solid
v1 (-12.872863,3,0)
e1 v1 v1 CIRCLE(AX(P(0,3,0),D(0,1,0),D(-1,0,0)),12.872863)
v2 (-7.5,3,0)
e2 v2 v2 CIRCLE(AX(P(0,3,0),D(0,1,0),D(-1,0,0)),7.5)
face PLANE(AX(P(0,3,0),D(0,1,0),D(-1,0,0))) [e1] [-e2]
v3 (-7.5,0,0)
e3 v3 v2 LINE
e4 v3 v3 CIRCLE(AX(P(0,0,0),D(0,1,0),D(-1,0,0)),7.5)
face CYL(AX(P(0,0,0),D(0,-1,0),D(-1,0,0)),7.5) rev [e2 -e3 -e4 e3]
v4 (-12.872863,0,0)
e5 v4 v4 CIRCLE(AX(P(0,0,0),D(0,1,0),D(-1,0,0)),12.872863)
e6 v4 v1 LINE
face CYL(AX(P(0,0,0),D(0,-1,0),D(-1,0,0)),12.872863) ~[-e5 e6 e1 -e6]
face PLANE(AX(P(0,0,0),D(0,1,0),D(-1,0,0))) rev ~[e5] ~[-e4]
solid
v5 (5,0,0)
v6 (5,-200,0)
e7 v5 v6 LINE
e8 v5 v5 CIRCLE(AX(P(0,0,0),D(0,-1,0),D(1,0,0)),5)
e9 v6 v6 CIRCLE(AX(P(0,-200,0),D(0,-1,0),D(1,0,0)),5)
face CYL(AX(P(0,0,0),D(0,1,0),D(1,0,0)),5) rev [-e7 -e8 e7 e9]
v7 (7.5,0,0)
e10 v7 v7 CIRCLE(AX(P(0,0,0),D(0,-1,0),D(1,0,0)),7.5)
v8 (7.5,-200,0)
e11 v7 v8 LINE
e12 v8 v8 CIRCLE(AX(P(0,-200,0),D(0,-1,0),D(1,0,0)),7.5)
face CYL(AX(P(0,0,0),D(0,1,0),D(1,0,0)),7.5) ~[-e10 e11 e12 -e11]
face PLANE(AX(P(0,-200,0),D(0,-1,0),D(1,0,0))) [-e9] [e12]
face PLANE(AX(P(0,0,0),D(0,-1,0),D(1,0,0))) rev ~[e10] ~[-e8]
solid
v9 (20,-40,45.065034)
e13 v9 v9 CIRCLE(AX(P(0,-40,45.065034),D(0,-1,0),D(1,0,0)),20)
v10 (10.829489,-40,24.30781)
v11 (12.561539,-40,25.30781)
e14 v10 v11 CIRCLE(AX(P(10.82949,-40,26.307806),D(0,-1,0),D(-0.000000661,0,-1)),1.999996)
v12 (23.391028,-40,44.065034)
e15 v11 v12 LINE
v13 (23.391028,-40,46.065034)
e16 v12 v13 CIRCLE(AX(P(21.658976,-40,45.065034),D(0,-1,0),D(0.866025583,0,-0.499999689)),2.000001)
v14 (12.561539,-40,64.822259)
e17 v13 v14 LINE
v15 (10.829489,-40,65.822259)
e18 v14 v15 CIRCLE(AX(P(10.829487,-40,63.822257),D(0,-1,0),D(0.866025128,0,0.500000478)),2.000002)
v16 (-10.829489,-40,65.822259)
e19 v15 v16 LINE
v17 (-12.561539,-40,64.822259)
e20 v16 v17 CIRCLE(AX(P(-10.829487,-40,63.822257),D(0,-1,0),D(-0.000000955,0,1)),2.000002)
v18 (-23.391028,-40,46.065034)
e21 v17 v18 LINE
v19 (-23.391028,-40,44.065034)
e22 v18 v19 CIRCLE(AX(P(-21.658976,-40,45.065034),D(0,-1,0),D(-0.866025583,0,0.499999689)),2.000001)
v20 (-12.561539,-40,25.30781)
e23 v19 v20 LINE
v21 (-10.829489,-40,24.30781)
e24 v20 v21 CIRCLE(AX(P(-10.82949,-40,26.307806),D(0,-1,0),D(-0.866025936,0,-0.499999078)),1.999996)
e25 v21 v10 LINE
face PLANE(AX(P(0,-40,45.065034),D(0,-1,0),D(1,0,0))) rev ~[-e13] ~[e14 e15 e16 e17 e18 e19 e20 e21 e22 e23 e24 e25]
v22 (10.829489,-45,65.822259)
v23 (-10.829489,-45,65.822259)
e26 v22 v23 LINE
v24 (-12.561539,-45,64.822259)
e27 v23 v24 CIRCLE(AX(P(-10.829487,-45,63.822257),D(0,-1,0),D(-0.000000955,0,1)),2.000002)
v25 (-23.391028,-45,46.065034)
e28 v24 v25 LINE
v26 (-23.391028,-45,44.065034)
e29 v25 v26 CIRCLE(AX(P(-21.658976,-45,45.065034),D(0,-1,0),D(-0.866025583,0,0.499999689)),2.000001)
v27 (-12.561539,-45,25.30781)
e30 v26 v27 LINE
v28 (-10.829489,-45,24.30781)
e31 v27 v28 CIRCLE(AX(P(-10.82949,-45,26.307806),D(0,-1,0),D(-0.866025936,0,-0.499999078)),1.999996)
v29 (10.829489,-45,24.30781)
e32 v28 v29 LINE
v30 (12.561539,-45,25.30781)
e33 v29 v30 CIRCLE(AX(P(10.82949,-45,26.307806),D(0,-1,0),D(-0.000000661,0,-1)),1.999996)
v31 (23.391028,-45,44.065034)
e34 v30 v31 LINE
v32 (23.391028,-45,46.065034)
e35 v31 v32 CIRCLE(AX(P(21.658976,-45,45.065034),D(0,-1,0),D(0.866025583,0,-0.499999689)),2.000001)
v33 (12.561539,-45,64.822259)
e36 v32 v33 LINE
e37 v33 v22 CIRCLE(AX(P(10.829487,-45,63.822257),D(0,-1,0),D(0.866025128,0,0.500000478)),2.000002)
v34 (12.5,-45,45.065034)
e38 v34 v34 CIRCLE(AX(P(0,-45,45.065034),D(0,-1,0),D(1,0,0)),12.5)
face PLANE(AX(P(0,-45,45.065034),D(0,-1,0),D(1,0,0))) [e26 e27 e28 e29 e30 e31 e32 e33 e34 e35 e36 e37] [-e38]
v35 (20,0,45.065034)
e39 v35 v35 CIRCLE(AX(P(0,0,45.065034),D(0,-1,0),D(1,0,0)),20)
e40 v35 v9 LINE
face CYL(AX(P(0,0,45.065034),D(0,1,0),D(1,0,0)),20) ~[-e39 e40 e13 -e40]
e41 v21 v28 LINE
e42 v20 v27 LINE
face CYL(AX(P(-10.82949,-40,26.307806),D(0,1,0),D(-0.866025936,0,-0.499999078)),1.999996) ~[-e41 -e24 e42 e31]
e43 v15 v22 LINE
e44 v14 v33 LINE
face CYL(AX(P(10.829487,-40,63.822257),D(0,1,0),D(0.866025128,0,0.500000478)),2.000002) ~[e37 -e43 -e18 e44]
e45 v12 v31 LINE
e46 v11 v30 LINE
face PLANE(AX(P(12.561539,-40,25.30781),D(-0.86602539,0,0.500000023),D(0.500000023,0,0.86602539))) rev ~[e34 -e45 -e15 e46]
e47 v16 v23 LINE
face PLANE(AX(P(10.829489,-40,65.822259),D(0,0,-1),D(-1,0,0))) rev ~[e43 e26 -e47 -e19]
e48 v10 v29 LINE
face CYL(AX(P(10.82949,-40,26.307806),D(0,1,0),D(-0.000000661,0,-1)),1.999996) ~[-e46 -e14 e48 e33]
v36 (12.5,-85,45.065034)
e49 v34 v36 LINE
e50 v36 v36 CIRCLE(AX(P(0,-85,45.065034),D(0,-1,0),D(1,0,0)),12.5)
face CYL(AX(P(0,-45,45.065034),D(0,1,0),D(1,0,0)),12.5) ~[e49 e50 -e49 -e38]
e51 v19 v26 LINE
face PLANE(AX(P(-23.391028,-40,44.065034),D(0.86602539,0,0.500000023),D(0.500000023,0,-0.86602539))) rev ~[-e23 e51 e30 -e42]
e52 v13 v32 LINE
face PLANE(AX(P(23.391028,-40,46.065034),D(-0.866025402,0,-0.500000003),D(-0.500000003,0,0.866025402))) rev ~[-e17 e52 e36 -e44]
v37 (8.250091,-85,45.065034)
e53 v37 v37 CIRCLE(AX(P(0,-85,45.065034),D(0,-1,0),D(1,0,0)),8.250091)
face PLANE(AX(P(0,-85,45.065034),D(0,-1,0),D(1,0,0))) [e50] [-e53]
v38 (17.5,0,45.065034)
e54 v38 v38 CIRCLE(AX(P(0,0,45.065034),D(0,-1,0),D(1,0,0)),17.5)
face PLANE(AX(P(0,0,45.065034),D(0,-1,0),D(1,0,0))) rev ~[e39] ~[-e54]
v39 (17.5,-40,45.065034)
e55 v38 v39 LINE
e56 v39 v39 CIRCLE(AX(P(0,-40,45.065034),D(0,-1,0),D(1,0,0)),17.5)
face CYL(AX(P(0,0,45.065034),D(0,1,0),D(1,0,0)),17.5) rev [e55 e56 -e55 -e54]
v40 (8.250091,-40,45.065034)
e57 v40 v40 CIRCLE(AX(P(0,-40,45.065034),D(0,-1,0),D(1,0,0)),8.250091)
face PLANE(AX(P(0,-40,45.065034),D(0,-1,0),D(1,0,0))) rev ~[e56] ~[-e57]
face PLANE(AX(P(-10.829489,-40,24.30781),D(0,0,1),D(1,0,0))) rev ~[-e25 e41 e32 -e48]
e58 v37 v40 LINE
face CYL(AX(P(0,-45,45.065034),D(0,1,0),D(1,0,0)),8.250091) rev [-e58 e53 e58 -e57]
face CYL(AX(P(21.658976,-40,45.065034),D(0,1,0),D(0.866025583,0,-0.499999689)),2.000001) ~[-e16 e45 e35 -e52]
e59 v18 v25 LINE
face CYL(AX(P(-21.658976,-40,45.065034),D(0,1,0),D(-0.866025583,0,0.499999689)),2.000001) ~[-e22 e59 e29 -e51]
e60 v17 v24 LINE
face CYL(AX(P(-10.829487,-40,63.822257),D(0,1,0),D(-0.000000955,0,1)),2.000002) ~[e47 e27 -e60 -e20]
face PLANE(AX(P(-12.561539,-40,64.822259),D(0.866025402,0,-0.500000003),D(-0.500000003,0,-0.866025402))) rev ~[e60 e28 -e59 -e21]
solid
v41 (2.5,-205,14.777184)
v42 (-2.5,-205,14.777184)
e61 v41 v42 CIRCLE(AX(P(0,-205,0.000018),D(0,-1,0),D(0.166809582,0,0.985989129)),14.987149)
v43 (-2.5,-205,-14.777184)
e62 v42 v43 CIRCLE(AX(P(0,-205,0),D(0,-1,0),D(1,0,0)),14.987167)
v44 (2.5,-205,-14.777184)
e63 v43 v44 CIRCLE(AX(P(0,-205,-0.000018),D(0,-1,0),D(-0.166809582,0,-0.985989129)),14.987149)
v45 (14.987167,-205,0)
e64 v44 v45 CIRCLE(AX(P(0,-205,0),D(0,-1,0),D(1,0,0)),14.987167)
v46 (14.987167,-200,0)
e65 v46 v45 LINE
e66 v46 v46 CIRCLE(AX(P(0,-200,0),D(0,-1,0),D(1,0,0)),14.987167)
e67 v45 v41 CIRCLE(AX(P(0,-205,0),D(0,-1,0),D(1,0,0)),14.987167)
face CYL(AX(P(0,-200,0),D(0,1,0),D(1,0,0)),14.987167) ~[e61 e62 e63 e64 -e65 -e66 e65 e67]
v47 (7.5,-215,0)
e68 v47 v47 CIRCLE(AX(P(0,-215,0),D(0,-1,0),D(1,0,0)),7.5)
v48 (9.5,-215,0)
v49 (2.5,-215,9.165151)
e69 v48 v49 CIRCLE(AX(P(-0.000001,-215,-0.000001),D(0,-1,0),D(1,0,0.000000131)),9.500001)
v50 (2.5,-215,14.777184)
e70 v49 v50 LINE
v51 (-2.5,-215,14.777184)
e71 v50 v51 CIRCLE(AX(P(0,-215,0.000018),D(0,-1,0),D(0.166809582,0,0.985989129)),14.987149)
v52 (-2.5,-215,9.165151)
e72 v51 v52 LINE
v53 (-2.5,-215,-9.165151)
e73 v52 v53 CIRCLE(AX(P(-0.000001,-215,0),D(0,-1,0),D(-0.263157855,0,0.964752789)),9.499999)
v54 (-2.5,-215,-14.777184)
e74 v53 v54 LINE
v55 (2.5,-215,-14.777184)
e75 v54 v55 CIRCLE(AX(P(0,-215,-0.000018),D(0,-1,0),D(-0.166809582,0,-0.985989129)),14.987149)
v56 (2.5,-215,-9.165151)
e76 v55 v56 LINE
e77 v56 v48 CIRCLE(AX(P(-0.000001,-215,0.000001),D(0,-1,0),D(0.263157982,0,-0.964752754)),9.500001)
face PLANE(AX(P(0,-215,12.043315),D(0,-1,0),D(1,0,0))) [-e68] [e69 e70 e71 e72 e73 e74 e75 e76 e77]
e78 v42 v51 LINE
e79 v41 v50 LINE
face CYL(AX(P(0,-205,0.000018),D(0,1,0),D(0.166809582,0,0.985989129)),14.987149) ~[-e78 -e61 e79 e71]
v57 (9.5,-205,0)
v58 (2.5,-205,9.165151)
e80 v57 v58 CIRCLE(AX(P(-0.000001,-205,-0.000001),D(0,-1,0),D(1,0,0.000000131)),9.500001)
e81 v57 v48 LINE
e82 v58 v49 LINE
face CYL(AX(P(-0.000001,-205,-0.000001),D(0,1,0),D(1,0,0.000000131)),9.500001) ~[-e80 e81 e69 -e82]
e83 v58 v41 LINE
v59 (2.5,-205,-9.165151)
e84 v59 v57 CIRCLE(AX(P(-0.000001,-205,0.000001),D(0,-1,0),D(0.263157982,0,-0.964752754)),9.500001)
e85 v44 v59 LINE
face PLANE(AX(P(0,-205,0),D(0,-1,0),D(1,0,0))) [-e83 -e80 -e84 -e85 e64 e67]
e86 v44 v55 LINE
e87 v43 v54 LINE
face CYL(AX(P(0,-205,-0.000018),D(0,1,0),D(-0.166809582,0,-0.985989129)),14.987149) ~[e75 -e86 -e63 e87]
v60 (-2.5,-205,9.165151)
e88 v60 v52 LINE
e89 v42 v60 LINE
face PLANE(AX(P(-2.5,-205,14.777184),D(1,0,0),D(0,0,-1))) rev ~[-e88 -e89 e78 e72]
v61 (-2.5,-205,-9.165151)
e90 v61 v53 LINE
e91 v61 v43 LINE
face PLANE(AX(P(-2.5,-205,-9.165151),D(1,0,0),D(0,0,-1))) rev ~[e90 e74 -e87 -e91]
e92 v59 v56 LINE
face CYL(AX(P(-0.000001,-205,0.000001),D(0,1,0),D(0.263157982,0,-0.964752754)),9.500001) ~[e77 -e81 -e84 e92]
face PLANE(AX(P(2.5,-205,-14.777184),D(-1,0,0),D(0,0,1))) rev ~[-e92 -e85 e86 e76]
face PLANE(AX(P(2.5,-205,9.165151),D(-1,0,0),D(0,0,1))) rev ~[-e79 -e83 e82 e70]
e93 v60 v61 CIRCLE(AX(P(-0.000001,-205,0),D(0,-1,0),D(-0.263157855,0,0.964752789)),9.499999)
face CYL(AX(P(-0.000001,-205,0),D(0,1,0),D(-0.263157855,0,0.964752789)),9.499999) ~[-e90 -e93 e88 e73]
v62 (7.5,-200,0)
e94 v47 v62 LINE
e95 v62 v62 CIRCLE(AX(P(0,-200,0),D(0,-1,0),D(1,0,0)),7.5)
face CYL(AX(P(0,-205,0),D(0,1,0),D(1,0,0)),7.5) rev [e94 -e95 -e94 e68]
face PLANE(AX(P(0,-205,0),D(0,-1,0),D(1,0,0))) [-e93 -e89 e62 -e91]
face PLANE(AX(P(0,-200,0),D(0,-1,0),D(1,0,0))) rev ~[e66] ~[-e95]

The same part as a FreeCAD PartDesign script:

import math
import FreeCAD as App
import Part
import Sketcher

V = App.Vector
Q = App.Units.Quantity

doc = App.newDocument("Part")
body = doc.addObject("PartDesign::Body", "Body")

sketch1 = body.newObject("Sketcher::SketchObject", "Sketch")
sketch1.AttachmentSupport = (doc.getObject("XZ_Plane"), [""])
sketch1.MapMode = "FlatFace"
sketch1.addGeometry([
    Part.Circle(V(0, 0, 0), V(0, 0, 1), 8),
    Part.Circle(V(0, 0, 0), V(0, 0, 1), 5),
], False)
sketch1.addConstraint([
    Sketcher.Constraint("Coincident", 0, 3, -1, 1),
    Sketcher.Constraint("Coincident", 1, 3, -1, 1),
    Sketcher.Constraint("Diameter", 0, Q("15 mm")),
    Sketcher.Constraint("Diameter", 1, Q("10 mm")),
])
pad1 = body.newObject("PartDesign::Pad", "Pad")
pad1.Profile = sketch1
pad1.Length = 200
body2 = doc.addObject("PartDesign::Body", "Body001")

sketch2 = body2.newObject("Sketcher::SketchObject", "Sketch001")
sketch2.AttachmentSupport = (doc.getObject("XZ_Plane001"), [""])
sketch2.MapMode = "FlatFace"
sketch2.AttachmentOffset = App.Placement(V(0, 0, 200), App.Rotation())
sketch2.addGeometry([
    Part.Circle(V(0, 0, 0), V(0, 0, 1), 15),
    Part.Circle(V(0, 0, 0), V(0, 0, 1), 8),
], False)
sketch2.addConstraint([
    Sketcher.Constraint("Coincident", 0, 3, -1, 1),
    Sketcher.Constraint("Coincident", 1, 3, -1, 1),
    Sketcher.Constraint("Diameter", 1, Q("15 mm")),
    Sketcher.Constraint("Diameter", 0, Q("29.974334 mm")),
])
pad2 = body2.newObject("PartDesign::Pad", "Pad001")
pad2.Profile = sketch2
pad2.Length = 5

sketch3 = body2.newObject("Sketcher::SketchObject", "Sketch002")
sketch3.AttachmentSupport = (doc.getObject("XZ_Plane001"), [""])
sketch3.MapMode = "FlatFace"
sketch3.AttachmentOffset = App.Placement(V(0, 0, 205), App.Rotation())
sketch3.addGeometry([
    Part.LineSegment(V(2.5, 9.165151, 0), V(2.5, 14.777184, 0)),
    Part.ArcOfCircle(Part.Circle(V(0, 0.000018, 0), V(0, 0, 1), 14.987149), math.radians(80.397627), math.radians(99.602373)),
    Part.LineSegment(V(-2.5, 14.777184, 0), V(-2.5, 9.165151, 0)),
    Part.ArcOfCircle(Part.Circle(V(-0.000001, 0, 0), V(0, 0, 1), 9.499999), math.radians(105.257521), math.radians(254.742479)),
    Part.LineSegment(V(-2.5, -9.165151, 0), V(-2.5, -14.777184, 0)),
    Part.ArcOfCircle(Part.Circle(V(0, -0.000018, 0), V(0, 0, 1), 14.987149), math.radians(-99.602373), math.radians(-80.397627)),
    Part.LineSegment(V(2.5, -14.777184, 0), V(2.5, -9.165151, 0)),
    Part.ArcOfCircle(Part.Circle(V(-0.000001, 0.000001, 0), V(0, 0, 1), 9.500001), math.radians(-74.742472), math.radians(-0.000008)),
    Part.ArcOfCircle(Part.Circle(V(-0.000001, -0.000001, 0), V(0, 0, 1), 9.500001), math.radians(0.000008), math.radians(74.742472)),
    Part.Circle(V(0, 0, 0), V(0, 0, 1), 7.5),
], False)
sketch3.addConstraint([
    Sketcher.Constraint("Coincident", 0, 2, 1, 1),
    Sketcher.Constraint("Coincident", 1, 2, 2, 1),
    Sketcher.Constraint("Coincident", 2, 2, 3, 1),
    Sketcher.Constraint("Coincident", 3, 2, 4, 1),
    Sketcher.Constraint("Coincident", 4, 2, 5, 1),
    Sketcher.Constraint("Coincident", 5, 2, 6, 1),
    Sketcher.Constraint("Coincident", 6, 2, 7, 1),
    Sketcher.Constraint("Tangent", 7, 2, 8, 1),
    Sketcher.Constraint("Coincident", 8, 2, 0, 1),
    Sketcher.Constraint("Vertical", 0),
    Sketcher.Constraint("Vertical", 2),
    Sketcher.Constraint("Vertical", 4),
    Sketcher.Constraint("Vertical", 6),
    Sketcher.Constraint("Coincident", 3, 3, -1, 1),
    Sketcher.Constraint("Coincident", 7, 3, -1, 1),
    Sketcher.Constraint("Coincident", 9, 3, -1, 1),
    Sketcher.Constraint("Equal", 1, 5),
    Sketcher.Constraint("Equal", 3, 7),
    Sketcher.Constraint("Equal", 7, 8),
    Sketcher.Constraint("Symmetric", 1, 3, 5, 3, -1, 1),
    Sketcher.Constraint("Symmetric", 0, 2, 1, 2, -2),
    Sketcher.Constraint("PointOnObject", 7, 2, -1),
    Sketcher.Constraint("Horizontal", 4, 2, 5, 2),
    Sketcher.Constraint("Vertical", 2, 2, 3, 2),
    Sketcher.Constraint("Diameter", 9, Q("15 mm")),
    Sketcher.Constraint("Radius", 3, Q("9.499999 mm")),
    Sketcher.Constraint("DistanceX", 1, 2, 0, 2, Q("5 mm")),
    Sketcher.Constraint("Radius", 1, Q("14.987149 mm")),
    Sketcher.Constraint("DistanceY", 0, 1, 0, 2, Q("5.612033 mm")),
])
pad3 = body2.newObject("PartDesign::Pad", "Pad002")
pad3.Profile = sketch3
pad3.Length = 10
body3 = doc.addObject("PartDesign::Body", "Body002")

sketch4 = body3.newObject("Sketcher::SketchObject", "Sketch003")
sketch4.AttachmentSupport = (doc.getObject("XZ_Plane002"), [""])
sketch4.MapMode = "FlatFace"
sketch4.addGeometry([
    Part.Circle(V(0, 45, 0), V(0, 0, 1), 20),
    Part.Circle(V(0, 45, 0), V(0, 0, 1), 18),
], False)
sketch4.addConstraint([
    Sketcher.Constraint("Coincident", 1, 3, 0, 3),
    Sketcher.Constraint("PointOnObject", 0, 3, -2),
    Sketcher.Constraint("Diameter", 0, Q("40 mm")),
    Sketcher.Constraint("Diameter", 1, Q("35 mm")),
    Sketcher.Constraint("DistanceY", -1, 1, 0, 3, Q("45.065034 mm")),
])
pad4 = body3.newObject("PartDesign::Pad", "Pad003")
pad4.Profile = sketch4
pad4.Length = 40

sketch5 = body3.newObject("Sketcher::SketchObject", "Sketch004")
sketch5.AttachmentSupport = (doc.getObject("XZ_Plane002"), [""])
sketch5.MapMode = "FlatFace"
sketch5.AttachmentOffset = App.Placement(V(0, 0, 40), App.Rotation())
sketch5.addGeometry([
    Part.LineSegment(V(10.8, 65.8, 0), V(-10.8, 65.8, 0)),
    Part.ArcOfCircle(Part.Circle(V(-10.8, 63.8, 0), V(0, 0, 1), 2), math.radians(90), math.radians(150)),
    Part.LineSegment(V(-12.6, 64.8, 0), V(-23.4, 46.1, 0)),
    Part.ArcOfCircle(Part.Circle(V(-21.7, 45.1, 0), V(0, 0, 1), 2), math.radians(150), math.radians(210)),
    Part.LineSegment(V(-23.4, 44.1, 0), V(-12.6, 25.3, 0)),
    Part.ArcOfCircle(Part.Circle(V(-10.8, 26.3, 0), V(0, 0, 1), 2), math.radians(-150), math.radians(-90)),
    Part.LineSegment(V(-10.8, 24.3, 0), V(10.8, 24.3, 0)),
    Part.ArcOfCircle(Part.Circle(V(10.8, 26.3, 0), V(0, 0, 1), 2), math.radians(-90), math.radians(-30)),
    Part.LineSegment(V(12.6, 25.3, 0), V(23.4, 44.1, 0)),
    Part.ArcOfCircle(Part.Circle(V(21.7, 45.1, 0), V(0, 0, 1), 2), math.radians(-30), math.radians(30)),
    Part.LineSegment(V(23.4, 46.1, 0), V(12.6, 64.8, 0)),
    Part.ArcOfCircle(Part.Circle(V(10.8, 63.8, 0), V(0, 0, 1), 2), math.radians(30), math.radians(90)),
    Part.Circle(V(0, 45.1, 0), V(0, 0, 1), 8.3),
], False)
sketch5.addConstraint([
    Sketcher.Constraint("Tangent", 0, 2, 1, 1),
    Sketcher.Constraint("Tangent", 1, 2, 2, 1),
    Sketcher.Constraint("Tangent", 2, 2, 3, 1),
    Sketcher.Constraint("Tangent", 3, 2, 4, 1),
    Sketcher.Constraint("Tangent", 4, 2, 5, 1),
    Sketcher.Constraint("Tangent", 5, 2, 6, 1),
    Sketcher.Constraint("Tangent", 6, 2, 7, 1),
    Sketcher.Constraint("Tangent", 7, 2, 8, 1),
    Sketcher.Constraint("Tangent", 8, 2, 9, 1),
    Sketcher.Constraint("Tangent", 9, 2, 10, 1),
    Sketcher.Constraint("Tangent", 10, 2, 11, 1),
    Sketcher.Constraint("Tangent", 11, 2, 0, 1),
    Sketcher.Constraint("Horizontal", 0),
    Sketcher.Constraint("Horizontal", 6),
    Sketcher.Constraint("Equal", 1, 3),
    Sketcher.Constraint("Equal", 5, 7),
    Sketcher.Constraint("Equal", 3, 9),
    Sketcher.Constraint("Equal", 9, 11),
    Sketcher.Constraint("Symmetric", 3, 3, 9, 3, -2),
    Sketcher.Constraint("PointOnObject", 12, 3, -2),
    Sketcher.Constraint("Parallel", 2, 8),
    Sketcher.Constraint("Parallel", 4, 10),
    Sketcher.Constraint("Horizontal", 9, 3, 12, 3),
    Sketcher.Constraint("Horizontal", 4, 2, 7, 2),
    Sketcher.Constraint("Vertical", 5, 3, 0, 2),
    Sketcher.Constraint("Vertical", 1, 2, 4, 2),
    Sketcher.Constraint("Radius", 1, Q("2.000002 mm")),
    Sketcher.Constraint("Angle", 2, Q("-120 deg")),
    Sketcher.Constraint("Diameter", 12, Q("16.500182 mm")),
    Sketcher.Constraint("DistanceX", 0, 2, 0, 1, Q("21.658978 mm")),
    Sketcher.Constraint("DistanceY", -1, 1, 0, 2, Q("65.822259 mm")),
    Sketcher.Constraint("DistanceX", 3, 2, -1, 1, Q("23.391028 mm")),
])
pad5 = body3.newObject("PartDesign::Pad", "Pad004")
pad5.Profile = sketch5
pad5.Length = 5

sketch6 = body3.newObject("Sketcher::SketchObject", "Sketch005")
sketch6.AttachmentSupport = (doc.getObject("XZ_Plane002"), [""])
sketch6.MapMode = "FlatFace"
sketch6.AttachmentOffset = App.Placement(V(0, 0, 45), App.Rotation())
sketch6.addGeometry([
    Part.Circle(V(0, 45, 0), V(0, 0, 1), 12),
    Part.Circle(V(0, 45, 0), V(0, 0, 1), 8),
], False)
sketch6.addConstraint([
    Sketcher.Constraint("Coincident", 1, 3, 0, 3),
    Sketcher.Constraint("PointOnObject", 0, 3, -2),
    Sketcher.Constraint("Diameter", 0, Q("25 mm")),
    Sketcher.Constraint("Diameter", 1, Q("16.500182 mm")),
    Sketcher.Constraint("DistanceY", -1, 1, 0, 3, Q("45.065034 mm")),
])
pad6 = body3.newObject("PartDesign::Pad", "Pad005")
pad6.Profile = sketch6
pad6.Length = 40
body4 = doc.addObject("PartDesign::Body", "Body003")

sketch7 = body4.newObject("Sketcher::SketchObject", "Sketch006")
sketch7.AttachmentSupport = (doc.getObject("XZ_Plane003"), [""])
sketch7.MapMode = "FlatFace"
sketch7.addGeometry([
    Part.Circle(V(0, 0, 0), V(0, 0, 1), 13),
    Part.Circle(V(0, 0, 0), V(0, 0, 1), 8),
], False)
sketch7.addConstraint([
    Sketcher.Constraint("Coincident", 0, 3, -1, 1),
    Sketcher.Constraint("Coincident", 1, 3, -1, 1),
    Sketcher.Constraint("Diameter", 1, Q("15 mm")),
    Sketcher.Constraint("Diameter", 0, Q("25.745726 mm")),
])
pad7 = body4.newObject("PartDesign::Pad", "Pad006")
pad7.Profile = sketch7
pad7.Length = 3
pad7.Reversed = True

doc.recompute()
